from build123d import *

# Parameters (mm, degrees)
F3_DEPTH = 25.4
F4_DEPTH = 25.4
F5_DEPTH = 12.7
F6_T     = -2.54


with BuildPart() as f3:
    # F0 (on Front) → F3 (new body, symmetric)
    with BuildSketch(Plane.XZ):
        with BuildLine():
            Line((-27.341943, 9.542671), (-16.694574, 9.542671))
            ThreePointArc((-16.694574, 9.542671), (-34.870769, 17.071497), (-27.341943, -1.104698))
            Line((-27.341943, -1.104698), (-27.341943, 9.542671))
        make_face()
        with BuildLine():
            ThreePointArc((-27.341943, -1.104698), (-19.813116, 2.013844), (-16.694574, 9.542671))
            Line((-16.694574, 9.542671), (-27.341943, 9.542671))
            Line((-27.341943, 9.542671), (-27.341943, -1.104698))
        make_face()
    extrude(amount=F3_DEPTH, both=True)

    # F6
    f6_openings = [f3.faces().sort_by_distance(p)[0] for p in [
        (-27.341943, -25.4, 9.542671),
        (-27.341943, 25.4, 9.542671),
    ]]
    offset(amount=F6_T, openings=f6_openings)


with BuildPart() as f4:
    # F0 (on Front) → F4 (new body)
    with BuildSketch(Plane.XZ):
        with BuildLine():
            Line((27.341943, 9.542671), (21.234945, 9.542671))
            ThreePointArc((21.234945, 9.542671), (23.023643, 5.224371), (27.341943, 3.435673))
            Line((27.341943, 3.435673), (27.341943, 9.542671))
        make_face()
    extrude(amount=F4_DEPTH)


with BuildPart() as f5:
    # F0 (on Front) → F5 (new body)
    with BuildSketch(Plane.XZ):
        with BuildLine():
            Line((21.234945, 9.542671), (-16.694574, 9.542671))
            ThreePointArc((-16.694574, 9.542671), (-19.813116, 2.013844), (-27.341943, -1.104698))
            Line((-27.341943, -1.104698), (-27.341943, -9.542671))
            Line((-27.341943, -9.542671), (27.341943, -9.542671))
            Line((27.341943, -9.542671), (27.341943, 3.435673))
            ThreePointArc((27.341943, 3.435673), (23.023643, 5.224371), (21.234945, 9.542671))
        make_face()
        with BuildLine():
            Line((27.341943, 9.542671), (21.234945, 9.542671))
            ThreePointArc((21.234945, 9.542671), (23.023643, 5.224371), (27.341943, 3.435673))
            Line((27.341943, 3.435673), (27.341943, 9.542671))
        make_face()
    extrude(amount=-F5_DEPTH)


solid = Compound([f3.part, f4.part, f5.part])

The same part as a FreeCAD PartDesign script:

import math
import FreeCAD as App
import Part
import Sketcher
Q = App.Units.Quantity


def faces_at(feature, points):
    """Names of the faces that lie closest to the given points."""
    faces = feature.Shape.Faces
    near = lambda p: min(range(len(faces)), key=lambda i: faces[i].distToShape(Part.Vertex(*p))[0])
    return sorted({f"Face{near(p) + 1}" for p in points})

doc = App.newDocument("Part")
body = doc.addObject("PartDesign::Body", "Body")

sketch1 = body.newObject("Sketcher::SketchObject", "Sketch")
sketch1.AttachmentSupport = (doc.getObject("XZ_Plane"), [""])
sketch1.MapMode = "FlatFace"
sketch1.addGeometry(Part.ArcOfCircle(Part.Circle(App.Vector(-27.341943, 9.542671, 0), App.Vector(0, 0, 1), 10.647369), math.radians(0.000003), math.radians(269.999997)), False)
sketch1.addGeometry(Part.ArcOfCircle(Part.Circle(App.Vector(-27.341942, 9.54267, 0), App.Vector(0, 0, 1), 10.647368), math.radians(-90.000003), math.radians(0.000003)), False)
sketch1.addConstraint(Sketcher.Constraint("Tangent", 0, 1, 1, 2))
sketch1.addConstraint(Sketcher.Constraint("Coincident", 1, 1, 0, 2))
sketch1.addConstraint(Sketcher.Constraint("Horizontal", 1, 3, 0, 1))
sketch1.addConstraint(Sketcher.Constraint("Vertical", 0, 3, 1, 1))
sketch1.addConstraint(Sketcher.Constraint("Radius", 0, 10.647369))
sketch1.addConstraint(Sketcher.Constraint("DistanceY", -1, 1, 0, 3, 9.542671))
sketch1.addConstraint(Sketcher.Constraint("DistanceX", 0, 3, -1, 1, 27.341943))
pad1 = body.newObject("PartDesign::Pad", "Pad")
pad1.Profile = sketch1
pad1.Length = Q("2 in")
pad1.Midplane = True
doc.recompute()

thickness = body.newObject("PartDesign::Thickness", "Thickness")
thickness.Base = (pad1, faces_at(pad1, [(-27.342, -25.4, 9.543), (-27.342, 25.4, 9.543)]))
thickness.Value = Q("0.1 in")
thickness.Reversed = True
thickness.Join = "Arc"
body2 = doc.addObject("PartDesign::Body", "Body001")

sketch2 = body2.newObject("Sketcher::SketchObject", "Sketch001")
sketch2.AttachmentSupport = (doc.getObject("XZ_Plane001"), [""])
sketch2.MapMode = "FlatFace"
sketch2.addGeometry(Part.LineSegment(App.Vector(27.341943, 9.542671, 0), App.Vector(21.234945, 9.542671, 0)), False)
sketch2.addGeometry(Part.ArcOfCircle(Part.Circle(App.Vector(27.341942, 9.54267, 0), App.Vector(0, 0, 1), 6.106997), math.radians(179.99999), math.radians(270.00001)), False)
sketch2.addGeometry(Part.LineSegment(App.Vector(27.341943, 3.435673, 0), App.Vector(27.341943, 9.542671, 0)), False)
sketch2.addConstraint(Sketcher.Constraint("Coincident", 0, 2, 1, 1))
sketch2.addConstraint(Sketcher.Constraint("Coincident", 1, 2, 2, 1))
sketch2.addConstraint(Sketcher.Constraint("Coincident", 2, 2, 0, 1))
sketch2.addConstraint(Sketcher.Constraint("Horizontal", 0))
sketch2.addConstraint(Sketcher.Constraint("Vertical", 2))
sketch2.addConstraint(Sketcher.Constraint("Coincident", 2, 2, 1, 3))
sketch2.addConstraint(Sketcher.Constraint("DistanceX", 0, 2, 0, 1, 6.106998))
sketch2.addConstraint(Sketcher.Constraint("DistanceX", -1, 1, 1, 3, 27.341942))
sketch2.addConstraint(Sketcher.Constraint("DistanceY", -1, 1, 1, 3, 9.54267))
pad2 = body2.newObject("PartDesign::Pad", "Pad001")
pad2.Profile = sketch2
pad2.Length = Q("1 in")
body3 = doc.addObject("PartDesign::Body", "Body002")

sketch3 = body3.newObject("Sketcher::SketchObject", "Sketch002")
sketch3.AttachmentSupport = (doc.getObject("XZ_Plane002"), [""])
sketch3.MapMode = "FlatFace"
sketch3.addGeometry(Part.ArcOfCircle(Part.Circle(App.Vector(-27.341942, 9.54267, 0), App.Vector(0, 0, 1), 10.647368), math.radians(-90.000003), math.radians(0.000003)), False)
sketch3.addGeometry(Part.LineSegment(App.Vector(-27.341943, -1.104698, 0), App.Vector(-27.341943, -9.542671, 0)), False)
sketch3.addGeometry(Part.LineSegment(App.Vector(-27.341943, -9.542671, 0), App.Vector(27.341943, -9.542671, 0)), False)
sketch3.addGeometry(Part.LineSegment(App.Vector(27.341943, -9.542671, 0), App.Vector(27.341943, 9.542671, 0)), False)
sketch3.addGeometry(Part.LineSegment(App.Vector(27.341943, 9.542671, 0), App.Vector(-16.694574, 9.542671, 0)), False)
sketch3.addConstraint(Sketcher.Constraint("Coincident", 0, 1, 1, 1))
sketch3.addConstraint(Sketcher.Constraint("Coincident", 1, 2, 2, 1))
sketch3.addConstraint(Sketcher.Constraint("Coincident", 2, 2, 3, 1))
sketch3.addConstraint(Sketcher.Constraint("Coincident", 3, 2, 4, 1))
sketch3.addConstraint(Sketcher.Constraint("Coincident", 4, 2, 0, 2))
sketch3.addConstraint(Sketcher.Constraint("Vertical", 1))
sketch3.addConstraint(Sketcher.Constraint("Horizontal", 2))
sketch3.addConstraint(Sketcher.Constraint("Vertical", 3))
sketch3.addConstraint(Sketcher.Constraint("Horizontal", 4))
sketch3.addConstraint(Sketcher.Constraint("Symmetric", 1, 2, 3, 2, -1, 1))
sketch3.addConstraint(Sketcher.Constraint("Horizontal", 0, 3, 3, 2))
sketch3.addConstraint(Sketcher.Constraint("Radius", 0, 10.647368))
sketch3.addConstraint(Sketcher.Constraint("DistanceX", 2, 1, 2, 2, 54.683886))
sketch3.addConstraint(Sketcher.Constraint("DistanceX", 4, 2, 4, 1, 44.036517))
sketch3.addConstraint(Sketcher.Constraint("DistanceY", 1, 2, 1, 1, 8.437973))
pad3 = body3.newObject("PartDesign::Pad", "Pad002")
pad3.Profile = sketch3
pad3.Length = Q("0.5 in")
pad3.Reversed = True

doc.recompute()
